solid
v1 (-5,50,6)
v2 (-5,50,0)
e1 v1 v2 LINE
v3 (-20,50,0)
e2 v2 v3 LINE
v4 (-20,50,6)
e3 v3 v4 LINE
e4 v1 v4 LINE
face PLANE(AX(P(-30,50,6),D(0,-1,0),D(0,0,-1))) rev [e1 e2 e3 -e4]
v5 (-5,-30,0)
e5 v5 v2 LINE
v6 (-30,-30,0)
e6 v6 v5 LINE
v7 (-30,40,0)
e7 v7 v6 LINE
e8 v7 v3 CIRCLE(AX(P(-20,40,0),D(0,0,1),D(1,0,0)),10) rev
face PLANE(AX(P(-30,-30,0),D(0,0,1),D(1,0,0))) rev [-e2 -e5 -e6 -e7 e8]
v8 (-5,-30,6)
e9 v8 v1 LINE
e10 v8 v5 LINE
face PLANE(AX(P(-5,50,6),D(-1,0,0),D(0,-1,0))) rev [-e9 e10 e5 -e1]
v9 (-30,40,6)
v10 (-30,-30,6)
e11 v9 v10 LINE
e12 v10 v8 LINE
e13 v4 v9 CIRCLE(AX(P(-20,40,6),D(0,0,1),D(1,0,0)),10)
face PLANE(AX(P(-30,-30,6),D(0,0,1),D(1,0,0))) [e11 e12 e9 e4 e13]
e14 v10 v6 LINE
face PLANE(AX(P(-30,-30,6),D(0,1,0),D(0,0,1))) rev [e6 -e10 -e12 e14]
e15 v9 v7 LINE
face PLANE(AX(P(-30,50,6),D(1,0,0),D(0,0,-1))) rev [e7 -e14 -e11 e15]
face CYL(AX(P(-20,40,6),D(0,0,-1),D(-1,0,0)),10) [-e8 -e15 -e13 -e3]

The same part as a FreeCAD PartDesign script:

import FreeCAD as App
import Part
import Sketcher

V = App.Vector
Q = App.Units.Quantity


def edges_at(feature, points):
    """Names of the edges that pass closest to the given points."""
    edges = feature.Shape.Edges
    near = lambda p: min(range(len(edges)), key=lambda i: edges[i].distToShape(Part.Vertex(*p))[0])
    return sorted({f"Edge{near(p) + 1}" for p in points})

doc = App.newDocument("Part")
body = doc.addObject("PartDesign::Body", "Body")

sketch1 = body.newObject("Sketcher::SketchObject", "Sketch")
sketch1.AttachmentSupport = (doc.getObject("XY_Plane"), [""])
sketch1.MapMode = "FlatFace"
sketch1.addGeometry(Part.LineSegment(V(-30, 50, 0), V(-30, -30, 0)), False)
sketch1.addGeometry(Part.LineSegment(V(-30, -30, 0), V(-5, -30, 0)), False)
sketch1.addGeometry(Part.LineSegment(V(-5, -30, 0), V(-5, 50, 0)), False)
sketch1.addGeometry(Part.LineSegment(V(-5, 50, 0), V(-30, 50, 0)), False)
sketch1.addConstraint(Sketcher.Constraint("Coincident", 0, 2, 1, 1))
sketch1.addConstraint(Sketcher.Constraint("Coincident", 1, 2, 2, 1))
sketch1.addConstraint(Sketcher.Constraint("Coincident", 2, 2, 3, 1))
sketch1.addConstraint(Sketcher.Constraint("Coincident", 3, 2, 0, 1))
sketch1.addConstraint(Sketcher.Constraint("Vertical", 0))
sketch1.addConstraint(Sketcher.Constraint("Horizontal", 1))
sketch1.addConstraint(Sketcher.Constraint("Vertical", 2))
sketch1.addConstraint(Sketcher.Constraint("Horizontal", 3))
sketch1.addConstraint(Sketcher.Constraint("DistanceX", 1, 1, 1, 2, Q("25 mm")))
sketch1.addConstraint(Sketcher.Constraint("DistanceY", 0, 2, 0, 1, Q("80 mm")))
sketch1.addConstraint(Sketcher.Constraint("DistanceX", 0, 2, -1, 1, Q("30 mm")))
sketch1.addConstraint(Sketcher.Constraint("DistanceY", 0, 2, -1, 1, Q("30 mm")))
pad1 = body.newObject("PartDesign::Pad", "Pad")
pad1.Profile = sketch1
pad1.Length = 6
doc.recompute()

fillet = body.newObject("PartDesign::Fillet", "Fillet")
fillet.Base = (pad1, edges_at(pad1, [(-30, 50, 3)]))
fillet.Radius = 10

doc.recompute()
